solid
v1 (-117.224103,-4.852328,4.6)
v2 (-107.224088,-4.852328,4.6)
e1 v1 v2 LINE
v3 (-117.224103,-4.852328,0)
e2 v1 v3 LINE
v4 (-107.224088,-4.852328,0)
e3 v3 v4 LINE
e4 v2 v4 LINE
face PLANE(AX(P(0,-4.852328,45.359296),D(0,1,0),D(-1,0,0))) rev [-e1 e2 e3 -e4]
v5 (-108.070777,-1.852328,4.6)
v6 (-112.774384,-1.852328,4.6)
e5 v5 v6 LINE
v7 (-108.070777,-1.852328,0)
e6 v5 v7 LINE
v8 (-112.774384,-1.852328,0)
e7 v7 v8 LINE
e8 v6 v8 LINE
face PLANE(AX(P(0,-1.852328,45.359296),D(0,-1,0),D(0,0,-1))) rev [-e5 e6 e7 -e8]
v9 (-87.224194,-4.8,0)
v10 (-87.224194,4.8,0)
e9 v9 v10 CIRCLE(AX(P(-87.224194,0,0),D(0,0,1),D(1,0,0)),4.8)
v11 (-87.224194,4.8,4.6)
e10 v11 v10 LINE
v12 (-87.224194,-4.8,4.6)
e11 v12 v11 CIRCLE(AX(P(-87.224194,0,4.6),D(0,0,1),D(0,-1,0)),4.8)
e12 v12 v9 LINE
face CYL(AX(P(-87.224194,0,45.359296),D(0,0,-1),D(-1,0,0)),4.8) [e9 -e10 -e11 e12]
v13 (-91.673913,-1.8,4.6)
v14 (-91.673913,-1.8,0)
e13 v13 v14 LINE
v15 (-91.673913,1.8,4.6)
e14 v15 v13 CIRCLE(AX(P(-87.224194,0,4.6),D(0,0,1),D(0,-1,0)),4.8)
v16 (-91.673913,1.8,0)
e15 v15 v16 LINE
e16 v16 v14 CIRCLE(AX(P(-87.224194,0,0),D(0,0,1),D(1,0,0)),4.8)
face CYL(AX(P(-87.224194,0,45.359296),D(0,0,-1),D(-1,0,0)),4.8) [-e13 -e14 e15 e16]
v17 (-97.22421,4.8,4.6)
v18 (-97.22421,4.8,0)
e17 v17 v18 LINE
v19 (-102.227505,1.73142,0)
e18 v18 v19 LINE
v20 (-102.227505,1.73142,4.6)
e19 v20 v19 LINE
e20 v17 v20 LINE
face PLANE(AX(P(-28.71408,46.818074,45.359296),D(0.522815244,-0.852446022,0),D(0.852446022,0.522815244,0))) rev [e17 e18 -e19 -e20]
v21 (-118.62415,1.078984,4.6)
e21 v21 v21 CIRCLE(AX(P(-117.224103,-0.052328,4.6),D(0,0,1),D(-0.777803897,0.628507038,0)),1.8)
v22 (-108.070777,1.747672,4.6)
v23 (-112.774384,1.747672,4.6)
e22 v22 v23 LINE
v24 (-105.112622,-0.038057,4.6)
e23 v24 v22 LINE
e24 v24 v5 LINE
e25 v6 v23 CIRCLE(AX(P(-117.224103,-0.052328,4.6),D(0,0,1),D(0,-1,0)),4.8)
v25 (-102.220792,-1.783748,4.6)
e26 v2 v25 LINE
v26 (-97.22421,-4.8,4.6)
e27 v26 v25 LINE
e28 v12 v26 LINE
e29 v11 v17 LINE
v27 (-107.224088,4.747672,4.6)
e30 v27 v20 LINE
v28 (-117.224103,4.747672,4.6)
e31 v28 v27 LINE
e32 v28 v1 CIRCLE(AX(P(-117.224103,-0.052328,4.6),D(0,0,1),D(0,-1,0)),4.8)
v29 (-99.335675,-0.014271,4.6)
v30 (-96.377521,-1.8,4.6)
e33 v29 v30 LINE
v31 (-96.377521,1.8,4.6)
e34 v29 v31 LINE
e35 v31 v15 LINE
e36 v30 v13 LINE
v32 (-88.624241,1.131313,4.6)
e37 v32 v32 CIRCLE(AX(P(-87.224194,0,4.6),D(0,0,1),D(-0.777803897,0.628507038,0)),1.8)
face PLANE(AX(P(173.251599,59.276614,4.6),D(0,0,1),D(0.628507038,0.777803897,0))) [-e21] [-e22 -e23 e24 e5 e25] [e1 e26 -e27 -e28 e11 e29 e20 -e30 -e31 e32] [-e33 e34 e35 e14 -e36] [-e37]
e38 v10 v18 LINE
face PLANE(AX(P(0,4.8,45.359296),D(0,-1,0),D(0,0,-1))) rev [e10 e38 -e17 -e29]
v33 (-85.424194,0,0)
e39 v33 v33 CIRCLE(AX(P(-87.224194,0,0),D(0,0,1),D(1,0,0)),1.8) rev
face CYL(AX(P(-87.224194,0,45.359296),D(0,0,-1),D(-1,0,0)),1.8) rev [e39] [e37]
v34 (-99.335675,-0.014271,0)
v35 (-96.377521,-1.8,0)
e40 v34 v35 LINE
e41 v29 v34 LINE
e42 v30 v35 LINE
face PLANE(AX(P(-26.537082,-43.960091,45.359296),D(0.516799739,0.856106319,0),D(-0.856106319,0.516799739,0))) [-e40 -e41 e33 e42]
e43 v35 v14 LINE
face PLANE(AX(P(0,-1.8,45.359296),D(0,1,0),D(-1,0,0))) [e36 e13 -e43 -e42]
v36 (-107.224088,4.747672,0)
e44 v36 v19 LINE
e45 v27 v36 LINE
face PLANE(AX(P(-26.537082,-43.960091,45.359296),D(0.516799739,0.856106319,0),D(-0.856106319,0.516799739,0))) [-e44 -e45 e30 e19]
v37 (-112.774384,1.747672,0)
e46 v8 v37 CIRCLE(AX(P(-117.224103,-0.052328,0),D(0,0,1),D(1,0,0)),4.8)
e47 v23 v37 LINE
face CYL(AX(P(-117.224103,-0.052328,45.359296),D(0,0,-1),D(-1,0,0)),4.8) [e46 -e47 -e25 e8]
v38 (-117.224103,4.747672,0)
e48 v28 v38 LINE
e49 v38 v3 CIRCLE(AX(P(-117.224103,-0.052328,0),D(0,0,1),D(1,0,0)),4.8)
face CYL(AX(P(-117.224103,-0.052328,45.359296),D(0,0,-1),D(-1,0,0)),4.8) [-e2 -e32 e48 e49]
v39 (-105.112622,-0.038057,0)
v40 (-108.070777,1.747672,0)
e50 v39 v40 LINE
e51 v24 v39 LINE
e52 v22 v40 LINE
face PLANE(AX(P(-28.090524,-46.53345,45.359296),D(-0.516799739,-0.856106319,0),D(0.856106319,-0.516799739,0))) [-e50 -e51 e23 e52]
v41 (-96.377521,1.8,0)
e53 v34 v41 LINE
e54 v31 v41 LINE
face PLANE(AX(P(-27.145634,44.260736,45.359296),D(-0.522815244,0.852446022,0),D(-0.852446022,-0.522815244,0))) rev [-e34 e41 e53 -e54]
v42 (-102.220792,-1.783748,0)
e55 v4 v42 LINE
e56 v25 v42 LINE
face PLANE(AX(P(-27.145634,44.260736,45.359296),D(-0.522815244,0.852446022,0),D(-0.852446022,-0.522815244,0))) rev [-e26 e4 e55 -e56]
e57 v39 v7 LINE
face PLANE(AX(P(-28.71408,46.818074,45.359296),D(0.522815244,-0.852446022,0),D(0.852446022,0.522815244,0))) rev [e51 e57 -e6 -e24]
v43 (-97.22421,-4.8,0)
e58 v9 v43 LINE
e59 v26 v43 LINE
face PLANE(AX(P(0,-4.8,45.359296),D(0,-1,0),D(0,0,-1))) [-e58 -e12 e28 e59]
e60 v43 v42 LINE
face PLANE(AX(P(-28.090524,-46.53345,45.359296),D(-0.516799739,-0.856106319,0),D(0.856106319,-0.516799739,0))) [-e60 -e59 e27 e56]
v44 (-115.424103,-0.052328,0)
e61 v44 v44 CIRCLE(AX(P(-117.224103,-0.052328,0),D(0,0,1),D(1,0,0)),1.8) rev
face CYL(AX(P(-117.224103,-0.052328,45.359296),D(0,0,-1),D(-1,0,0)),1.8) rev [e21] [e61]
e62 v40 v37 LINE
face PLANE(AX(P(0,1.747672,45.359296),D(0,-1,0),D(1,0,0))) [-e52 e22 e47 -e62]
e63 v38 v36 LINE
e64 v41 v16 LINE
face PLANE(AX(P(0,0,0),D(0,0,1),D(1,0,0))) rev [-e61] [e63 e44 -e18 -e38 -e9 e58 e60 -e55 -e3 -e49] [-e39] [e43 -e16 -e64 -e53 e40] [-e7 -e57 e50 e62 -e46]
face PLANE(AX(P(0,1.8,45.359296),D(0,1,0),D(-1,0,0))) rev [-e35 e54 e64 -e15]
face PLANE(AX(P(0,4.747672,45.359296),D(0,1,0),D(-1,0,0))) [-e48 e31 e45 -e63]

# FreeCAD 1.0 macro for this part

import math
import FreeCAD as App
import Part
import Sketcher

V = App.Vector

doc = App.newDocument("Part")
body = doc.addObject("PartDesign::Body", "Body")

# Sketch on XY plane
sketch1 = body.newObject("Sketcher::SketchObject", "Sketch")
sketch1.AttachmentSupport = (doc.getObject("XY_Plane"), [""])
sketch1.MapMode = "FlatFace"
sketch1.addGeometry(Part.ArcOfCircle(Part.Circle(V(-117.224103, -0.052328, 0), V(0, 0, 1), 4.8), math.radians(90), math.radians(270)), False)
sketch1.addGeometry(Part.LineSegment(V(-117.224103, -4.852328, 0), V(-107.224088, -4.852328, 0)), False)
sketch1.addGeometry(Part.LineSegment(V(-107.224088, -4.852328, 0), V(-102.220792, -1.783748, 0)), False)
sketch1.addGeometry(Part.LineSegment(V(-102.220792, -1.783748, 0), V(-97.22421, -4.8, 0)), False)
sketch1.addGeometry(Part.LineSegment(V(-97.22421, -4.8, 0), V(-87.224194, -4.8, 0)), False)
sketch1.addGeometry(Part.ArcOfCircle(Part.Circle(V(-87.224194, 0, 0), V(0, 0, 1), 4.8), math.radians(-90), math.radians(90)), False)
sketch1.addGeometry(Part.LineSegment(V(-87.224194, 4.8, 0), V(-97.22421, 4.8, 0)), False)
sketch1.addGeometry(Part.LineSegment(V(-97.22421, 4.8, 0), V(-102.227505, 1.73142, 0)), False)
sketch1.addGeometry(Part.LineSegment(V(-102.227505, 1.73142, 0), V(-107.224088, 4.747672, 0)), False)
sketch1.addGeometry(Part.LineSegment(V(-107.224088, 4.747672, 0), V(-117.224103, 4.747672, 0)), False)
sketch1.addGeometry(Part.LineSegment(V(-112.774384, 1.747672, 0), V(-108.070777, 1.747672, 0)), False)
sketch1.addGeometry(Part.LineSegment(V(-108.070777, 1.747672, 0), V(-105.112622, -0.038057, 0)), False)
sketch1.addGeometry(Part.LineSegment(V(-105.112622, -0.038057, 0), V(-108.070777, -1.852328, 0)), False)
sketch1.addGeometry(Part.LineSegment(V(-108.070777, -1.852328, 0), V(-112.774384, -1.852328, 0)), False)
sketch1.addGeometry(Part.ArcOfCircle(Part.Circle(V(-117.224103, -0.052328, 0), V(0, 0, 1), 4.8), math.radians(-22.024313), math.radians(22.024313)), False)
sketch1.addGeometry(Part.Circle(V(-117.224103, -0.052328, 0), V(0, 0, 1), 1.8), False)
sketch1.addGeometry(Part.LineSegment(V(-91.673913, -1.8, 0), V(-96.377521, -1.8, 0)), False)
sketch1.addGeometry(Part.LineSegment(V(-96.377521, -1.8, 0), V(-99.335675, -0.014271, 0)), False)
sketch1.addGeometry(Part.LineSegment(V(-99.335675, -0.014271, 0), V(-96.377521, 1.8, 0)), False)
sketch1.addGeometry(Part.LineSegment(V(-96.377521, 1.8, 0), V(-91.673913, 1.8, 0)), False)
sketch1.addGeometry(Part.ArcOfCircle(Part.Circle(V(-87.224194, 0, 0), V(0, 0, 1), 4.8), math.radians(157.975687), math.radians(202.024313)), False)
sketch1.addGeometry(Part.Circle(V(-87.224194, 0, 0), V(0, 0, 1), 1.8), False)
sketch1.addConstraint(Sketcher.Constraint("Tangent", 0, 2, 1, 1))
sketch1.addConstraint(Sketcher.Constraint("Coincident", 1, 2, 2, 1))
sketch1.addConstraint(Sketcher.Constraint("Coincident", 2, 2, 3, 1))
sketch1.addConstraint(Sketcher.Constraint("Coincident", 3, 2, 4, 1))
sketch1.addConstraint(Sketcher.Constraint("Tangent", 4, 2, 5, 1))
sketch1.addConstraint(Sketcher.Constraint("Tangent", 5, 2, 6, 1))
sketch1.addConstraint(Sketcher.Constraint("Coincident", 6, 2, 7, 1))
sketch1.addConstraint(Sketcher.Constraint("Coincident", 7, 2, 8, 1))
sketch1.addConstraint(Sketcher.Constraint("Coincident", 8, 2, 9, 1))
sketch1.addConstraint(Sketcher.Constraint("Tangent", 9, 2, 0, 1))
sketch1.addConstraint(Sketcher.Constraint("Coincident", 10, 2, 11, 1))
sketch1.addConstraint(Sketcher.Constraint("Coincident", 11, 2, 12, 1))
sketch1.addConstraint(Sketcher.Constraint("Coincident", 12, 2, 13, 1))
sketch1.addConstraint(Sketcher.Constraint("Coincident", 13, 2, 14, 1))
sketch1.addConstraint(Sketcher.Constraint("Coincident", 14, 2, 10, 1))
sketch1.addConstraint(Sketcher.Constraint("Coincident", 16, 2, 17, 1))
sketch1.addConstraint(Sketcher.Constraint("Coincident", 17, 2, 18, 1))
sketch1.addConstraint(Sketcher.Constraint("Coincident", 18, 2, 19, 1))
sketch1.addConstraint(Sketcher.Constraint("Coincident", 19, 2, 20, 1))
sketch1.addConstraint(Sketcher.Constraint("Coincident", 20, 2, 16, 1))
sketch1.addConstraint(Sketcher.Constraint("Horizontal", 1))
sketch1.addConstraint(Sketcher.Constraint("Horizontal", 4))
sketch1.addConstraint(Sketcher.Constraint("Horizontal", 6))
sketch1.addConstraint(Sketcher.Constraint("Horizontal", 9))
sketch1.addConstraint(Sketcher.Constraint("Horizontal", 10))
sketch1.addConstraint(Sketcher.Constraint("Horizontal", 13))
sketch1.addConstraint(Sketcher.Constraint("Horizontal", 16))
sketch1.addConstraint(Sketcher.Constraint("Horizontal", 19))
sketch1.addConstraint(Sketcher.Constraint("Coincident", 14, 3, 0, 3))
sketch1.addConstraint(Sketcher.Constraint("Coincident", 15, 3, 0, 3))
sketch1.addConstraint(Sketcher.Constraint("Coincident", 20, 3, 5, 3))
sketch1.addConstraint(Sketcher.Constraint("Coincident", 21, 3, 5, 3))
sketch1.addConstraint(Sketcher.Constraint("Equal", 0, 5))
sketch1.addConstraint(Sketcher.Constraint("Equal", 5, 14))
sketch1.addConstraint(Sketcher.Constraint("Equal", 14, 20))
sketch1.addConstraint(Sketcher.Constraint("Equal", 15, 21))
sketch1.addConstraint(Sketcher.Constraint("Symmetric", 3, 2, 6, 2, -1))
sketch1.addConstraint(Sketcher.Constraint("Symmetric", 16, 2, 18, 2, -1))
sketch1.addConstraint(Sketcher.Constraint("Parallel", 2, 7))
sketch1.addConstraint(Sketcher.Constraint("Parallel", 3, 8))
sketch1.addConstraint(Sketcher.Constraint("Parallel", 8, 11))
sketch1.addConstraint(Sketcher.Constraint("Parallel", 7, 12))
sketch1.addConstraint(Sketcher.Constraint("Parallel", 11, 17))
sketch1.addConstraint(Sketcher.Constraint("Parallel", 12, 18))
sketch1.addConstraint(Sketcher.Constraint("Vertical", 1, 2, 8, 2))
sketch1.addConstraint(Sketcher.Constraint("Vertical", 10, 2, 12, 2))
sketch1.addConstraint(Sketcher.Constraint("Vertical", 13, 2, 14, 2))
sketch1.addConstraint(Sketcher.Constraint("Equal", 1, 4))
sketch1.addConstraint(Sketcher.Constraint("Equal", 13, 16))
sketch1.addConstraint(Sketcher.Constraint("Equal", 11, 17))
sketch1.addConstraint(Sketcher.Constraint("Diameter", 15, 3.6))
sketch1.addConstraint(Sketcher.Constraint("Radius", 0, 4.8))
sketch1.addConstraint(Sketcher.Constraint("DistanceY", 10, 2, 8, 2, 3.0))
sketch1.addConstraint(Sketcher.Constraint("DistanceX", 11, 2, 16, 2, 8.735102))
sketch1.addConstraint(Sketcher.Constraint("Distance", 2, 5.86934))
sketch1.addConstraint(Sketcher.Constraint("Distance", 11, 3.455359))
sketch1.addConstraint(Sketcher.Constraint("DistanceX", 1, 1, 1, 2, 10.000015))
sketch1.addConstraint(Sketcher.Constraint("DistanceX", 10, 1, 10, 2, 4.703607))
sketch1.addConstraint(Sketcher.Constraint("DistanceY", 0, 3, -1, 1, 0.052328))
sketch1.addConstraint(Sketcher.Constraint("DistanceX", 3, 2, -1, 1, 97.22421))
pad1 = body.newObject("PartDesign::Pad", "Pad")
pad1.Profile = sketch1
pad1.Length = 4.6

doc.recompute()
